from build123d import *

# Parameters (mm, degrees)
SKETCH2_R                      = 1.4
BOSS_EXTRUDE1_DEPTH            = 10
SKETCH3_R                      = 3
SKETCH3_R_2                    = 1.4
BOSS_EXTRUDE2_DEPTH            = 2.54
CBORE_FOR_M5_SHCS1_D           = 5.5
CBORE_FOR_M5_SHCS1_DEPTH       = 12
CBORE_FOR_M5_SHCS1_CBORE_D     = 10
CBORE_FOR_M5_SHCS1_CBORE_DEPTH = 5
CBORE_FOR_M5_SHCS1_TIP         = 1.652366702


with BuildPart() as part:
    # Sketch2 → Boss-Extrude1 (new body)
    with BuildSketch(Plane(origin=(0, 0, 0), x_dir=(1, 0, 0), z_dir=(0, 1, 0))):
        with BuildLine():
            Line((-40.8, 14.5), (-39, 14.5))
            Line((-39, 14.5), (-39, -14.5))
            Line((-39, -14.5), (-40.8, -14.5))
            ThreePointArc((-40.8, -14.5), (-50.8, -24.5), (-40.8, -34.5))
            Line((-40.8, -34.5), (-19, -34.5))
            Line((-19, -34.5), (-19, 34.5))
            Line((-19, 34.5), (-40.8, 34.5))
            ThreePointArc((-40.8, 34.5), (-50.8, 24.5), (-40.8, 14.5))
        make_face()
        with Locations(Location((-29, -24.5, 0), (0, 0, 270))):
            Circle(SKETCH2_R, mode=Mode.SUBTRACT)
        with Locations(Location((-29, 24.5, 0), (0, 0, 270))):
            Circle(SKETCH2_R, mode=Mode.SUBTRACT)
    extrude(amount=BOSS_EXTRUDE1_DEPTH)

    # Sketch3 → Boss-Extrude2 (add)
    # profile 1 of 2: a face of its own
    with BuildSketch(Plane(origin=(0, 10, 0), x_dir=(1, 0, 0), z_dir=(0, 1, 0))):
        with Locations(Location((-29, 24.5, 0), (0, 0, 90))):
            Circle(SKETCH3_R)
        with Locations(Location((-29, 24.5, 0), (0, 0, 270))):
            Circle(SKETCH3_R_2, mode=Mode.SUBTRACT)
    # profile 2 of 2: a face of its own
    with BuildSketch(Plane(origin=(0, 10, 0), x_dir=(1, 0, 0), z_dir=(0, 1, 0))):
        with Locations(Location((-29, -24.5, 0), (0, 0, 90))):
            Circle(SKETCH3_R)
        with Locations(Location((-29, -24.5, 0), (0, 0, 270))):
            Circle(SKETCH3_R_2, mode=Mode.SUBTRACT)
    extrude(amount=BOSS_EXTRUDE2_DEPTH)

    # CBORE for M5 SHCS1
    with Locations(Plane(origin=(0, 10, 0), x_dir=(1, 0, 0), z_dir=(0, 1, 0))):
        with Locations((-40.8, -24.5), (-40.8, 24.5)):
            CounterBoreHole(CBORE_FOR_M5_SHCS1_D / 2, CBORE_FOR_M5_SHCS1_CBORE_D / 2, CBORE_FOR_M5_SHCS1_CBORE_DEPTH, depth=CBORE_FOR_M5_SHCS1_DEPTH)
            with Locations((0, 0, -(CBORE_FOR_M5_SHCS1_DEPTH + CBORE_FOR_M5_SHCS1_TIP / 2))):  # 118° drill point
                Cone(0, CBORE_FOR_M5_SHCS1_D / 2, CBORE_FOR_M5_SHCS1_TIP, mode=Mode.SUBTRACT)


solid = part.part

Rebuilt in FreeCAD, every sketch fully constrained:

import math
import FreeCAD as App
import Part
import Sketcher

V = App.Vector
Q = App.Units.Quantity

doc = App.newDocument("Part")
body = doc.addObject("PartDesign::Body", "Body")

# Sketch on XZ plane
sketch1 = body.newObject("Sketcher::SketchObject", "Sketch")
sketch1.AttachmentSupport = (doc.getObject("XZ_Plane"), [""])
sketch1.MapMode = "FlatFace"
sketch1.addGeometry(Part.LineSegment(V(-40.8, -14.5, 0), V(-39, -14.5, 0)), False)
sketch1.addGeometry(Part.LineSegment(V(-39, -14.5, 0), V(-39, 14.5, 0)), False)
sketch1.addGeometry(Part.LineSegment(V(-39, 14.5, 0), V(-40.8, 14.5, 0)), False)
sketch1.addGeometry(Part.ArcOfCircle(Part.Circle(V(-40.8, 24.5, 0), V(0, 0, 1), 10), math.radians(90), math.radians(270)), False)
sketch1.addGeometry(Part.LineSegment(V(-40.8, 34.5, 0), V(-19, 34.5, 0)), False)
sketch1.addGeometry(Part.LineSegment(V(-19, 34.5, 0), V(-19, -34.5, 0)), False)
sketch1.addGeometry(Part.LineSegment(V(-19, -34.5, 0), V(-40.8, -34.5, 0)), False)
sketch1.addGeometry(Part.ArcOfCircle(Part.Circle(V(-40.8, -24.5, 0), V(0, 0, 1), 10), math.radians(90), math.radians(270)), False)
sketch1.addGeometry(Part.Circle(V(-29, 24.5, 0), V(0, 0, 1), 1.4), False)
sketch1.addGeometry(Part.Circle(V(-29, -24.5, 0), V(0, 0, 1), 1.4), False)
sketch1.addConstraint(Sketcher.Constraint("Coincident", 0, 2, 1, 1))
sketch1.addConstraint(Sketcher.Constraint("Coincident", 1, 2, 2, 1))
sketch1.addConstraint(Sketcher.Constraint("Tangent", 2, 2, 3, 2))
sketch1.addConstraint(Sketcher.Constraint("Tangent", 3, 1, 4, 1))
sketch1.addConstraint(Sketcher.Constraint("Coincident", 4, 2, 5, 1))
sketch1.addConstraint(Sketcher.Constraint("Coincident", 5, 2, 6, 1))
sketch1.addConstraint(Sketcher.Constraint("Tangent", 6, 2, 7, 2))
sketch1.addConstraint(Sketcher.Constraint("Tangent", 7, 1, 0, 1))
sketch1.addConstraint(Sketcher.Constraint("Horizontal", 0))
sketch1.addConstraint(Sketcher.Constraint("Vertical", 1))
sketch1.addConstraint(Sketcher.Constraint("Horizontal", 2))
sketch1.addConstraint(Sketcher.Constraint("Horizontal", 4))
sketch1.addConstraint(Sketcher.Constraint("Vertical", 5))
sketch1.addConstraint(Sketcher.Constraint("Horizontal", 6))
sketch1.addConstraint(Sketcher.Constraint("Equal", 3, 7))
sketch1.addConstraint(Sketcher.Constraint("Equal", 8, 9))
sketch1.addConstraint(Sketcher.Constraint("Symmetric", 3, 3, 7, 3, -1))
sketch1.addConstraint(Sketcher.Constraint("Symmetric", 8, 3, 9, 3, -1))
sketch1.addConstraint(Sketcher.Constraint("Horizontal", 3, 3, 8, 3))
sketch1.addConstraint(Sketcher.Constraint("Radius", 3, Q("10 mm")))
sketch1.addConstraint(Sketcher.Constraint("Diameter", 8, Q("2.8 mm")))
sketch1.addConstraint(Sketcher.Constraint("DistanceY", 1, 1, 1, 2, Q("29 mm")))
sketch1.addConstraint(Sketcher.Constraint("DistanceX", 0, 1, 0, 2, Q("1.8 mm")))
sketch1.addConstraint(Sketcher.Constraint("DistanceX", 4, 1, 4, 2, Q("21.8 mm")))
sketch1.addConstraint(Sketcher.Constraint("DistanceX", 8, 3, -1, 1, Q("29 mm")))
sketch1.addConstraint(Sketcher.Constraint("DistanceX", 0, 2, -1, 1, Q("39 mm")))
pad1 = body.newObject("PartDesign::Pad", "Pad")
pad1.Profile = sketch1
pad1.Length = 10
pad1.Reversed = True

# Sketch on XZ plane
sketch2 = body.newObject("Sketcher::SketchObject", "Sketch001")
sketch2.AttachmentSupport = (doc.getObject("XZ_Plane"), [""])
sketch2.MapMode = "FlatFace"
sketch2.AttachmentOffset = App.Placement(V(0, 0, -10), App.Rotation())
sketch2.addGeometry(Part.Circle(V(-29, -24.5, 0), V(0, 0, 1), 3), False)
sketch2.addGeometry(Part.Circle(V(-29, -24.5, 0), V(0, 0, 1), 1.4), False)
sketch2.addGeometry(Part.Circle(V(-29, 24.5, 0), V(0, 0, 1), 3), False)
sketch2.addGeometry(Part.Circle(V(-29, 24.5, 0), V(0, 0, 1), 1.4), False)
sketch2.addConstraint(Sketcher.Constraint("Coincident", 1, 3, 0, 3))
sketch2.addConstraint(Sketcher.Constraint("Coincident", 3, 3, 2, 3))
sketch2.addConstraint(Sketcher.Constraint("Equal", 0, 2))
sketch2.addConstraint(Sketcher.Constraint("Equal", 1, 3))
sketch2.addConstraint(Sketcher.Constraint("Symmetric", 0, 3, 2, 3, -1))
sketch2.addConstraint(Sketcher.Constraint("Diameter", 0, Q("6 mm")))
sketch2.addConstraint(Sketcher.Constraint("Diameter", 1, Q("2.8 mm")))
sketch2.addConstraint(Sketcher.Constraint("DistanceX", 0, 3, -1, 1, Q("29 mm")))
sketch2.addConstraint(Sketcher.Constraint("DistanceY", 0, 3, 2, 3, Q("49 mm")))
pad2 = body.newObject("PartDesign::Pad", "Pad001")
pad2.Profile = sketch2
pad2.Length = 2.54
pad2.Reversed = True

# Sketch on XZ plane
sketch3 = body.newObject("Sketcher::SketchObject", "Sketch002")
sketch3.AttachmentSupport = (doc.getObject("XZ_Plane"), [""])
sketch3.MapMode = "FlatFace"
sketch3.AttachmentOffset = App.Placement(V(0, 0, -10), App.Rotation())
sketch3.addGeometry(Part.Circle(V(-40.8, 24.5, 0), V(0, 0, 1), 2.8), False)
sketch3.addGeometry(Part.Circle(V(-40.8, -24.5, 0), V(0, 0, 1), 2.8), False)
sketch3.addConstraint(Sketcher.Constraint("Equal", 0, 1))
sketch3.addConstraint(Sketcher.Constraint("Symmetric", 0, 3, 1, 3, -1))
sketch3.addConstraint(Sketcher.Constraint("Diameter", 0, Q("5.5 mm")))
sketch3.addConstraint(Sketcher.Constraint("DistanceY", 1, 3, 0, 3, Q("49 mm")))
sketch3.addConstraint(Sketcher.Constraint("DistanceX", 0, 3, -1, 1, Q("40.8 mm")))
doc.recompute()
hole = body.newObject("PartDesign::Hole", "Hole")
hole.Profile = sketch3
hole.ThreadType = "None"
hole.Diameter = 5.5
hole.DepthType = "Dimension"
hole.Depth = 12
hole.DrillPoint = "Angled"
hole.DrillPointAngle = 118
hole.HoleCutType = "Counterbore"
hole.HoleCutDiameter = 10
hole.HoleCutDepth = 5
hole.Reversed = True

doc.recompute()
